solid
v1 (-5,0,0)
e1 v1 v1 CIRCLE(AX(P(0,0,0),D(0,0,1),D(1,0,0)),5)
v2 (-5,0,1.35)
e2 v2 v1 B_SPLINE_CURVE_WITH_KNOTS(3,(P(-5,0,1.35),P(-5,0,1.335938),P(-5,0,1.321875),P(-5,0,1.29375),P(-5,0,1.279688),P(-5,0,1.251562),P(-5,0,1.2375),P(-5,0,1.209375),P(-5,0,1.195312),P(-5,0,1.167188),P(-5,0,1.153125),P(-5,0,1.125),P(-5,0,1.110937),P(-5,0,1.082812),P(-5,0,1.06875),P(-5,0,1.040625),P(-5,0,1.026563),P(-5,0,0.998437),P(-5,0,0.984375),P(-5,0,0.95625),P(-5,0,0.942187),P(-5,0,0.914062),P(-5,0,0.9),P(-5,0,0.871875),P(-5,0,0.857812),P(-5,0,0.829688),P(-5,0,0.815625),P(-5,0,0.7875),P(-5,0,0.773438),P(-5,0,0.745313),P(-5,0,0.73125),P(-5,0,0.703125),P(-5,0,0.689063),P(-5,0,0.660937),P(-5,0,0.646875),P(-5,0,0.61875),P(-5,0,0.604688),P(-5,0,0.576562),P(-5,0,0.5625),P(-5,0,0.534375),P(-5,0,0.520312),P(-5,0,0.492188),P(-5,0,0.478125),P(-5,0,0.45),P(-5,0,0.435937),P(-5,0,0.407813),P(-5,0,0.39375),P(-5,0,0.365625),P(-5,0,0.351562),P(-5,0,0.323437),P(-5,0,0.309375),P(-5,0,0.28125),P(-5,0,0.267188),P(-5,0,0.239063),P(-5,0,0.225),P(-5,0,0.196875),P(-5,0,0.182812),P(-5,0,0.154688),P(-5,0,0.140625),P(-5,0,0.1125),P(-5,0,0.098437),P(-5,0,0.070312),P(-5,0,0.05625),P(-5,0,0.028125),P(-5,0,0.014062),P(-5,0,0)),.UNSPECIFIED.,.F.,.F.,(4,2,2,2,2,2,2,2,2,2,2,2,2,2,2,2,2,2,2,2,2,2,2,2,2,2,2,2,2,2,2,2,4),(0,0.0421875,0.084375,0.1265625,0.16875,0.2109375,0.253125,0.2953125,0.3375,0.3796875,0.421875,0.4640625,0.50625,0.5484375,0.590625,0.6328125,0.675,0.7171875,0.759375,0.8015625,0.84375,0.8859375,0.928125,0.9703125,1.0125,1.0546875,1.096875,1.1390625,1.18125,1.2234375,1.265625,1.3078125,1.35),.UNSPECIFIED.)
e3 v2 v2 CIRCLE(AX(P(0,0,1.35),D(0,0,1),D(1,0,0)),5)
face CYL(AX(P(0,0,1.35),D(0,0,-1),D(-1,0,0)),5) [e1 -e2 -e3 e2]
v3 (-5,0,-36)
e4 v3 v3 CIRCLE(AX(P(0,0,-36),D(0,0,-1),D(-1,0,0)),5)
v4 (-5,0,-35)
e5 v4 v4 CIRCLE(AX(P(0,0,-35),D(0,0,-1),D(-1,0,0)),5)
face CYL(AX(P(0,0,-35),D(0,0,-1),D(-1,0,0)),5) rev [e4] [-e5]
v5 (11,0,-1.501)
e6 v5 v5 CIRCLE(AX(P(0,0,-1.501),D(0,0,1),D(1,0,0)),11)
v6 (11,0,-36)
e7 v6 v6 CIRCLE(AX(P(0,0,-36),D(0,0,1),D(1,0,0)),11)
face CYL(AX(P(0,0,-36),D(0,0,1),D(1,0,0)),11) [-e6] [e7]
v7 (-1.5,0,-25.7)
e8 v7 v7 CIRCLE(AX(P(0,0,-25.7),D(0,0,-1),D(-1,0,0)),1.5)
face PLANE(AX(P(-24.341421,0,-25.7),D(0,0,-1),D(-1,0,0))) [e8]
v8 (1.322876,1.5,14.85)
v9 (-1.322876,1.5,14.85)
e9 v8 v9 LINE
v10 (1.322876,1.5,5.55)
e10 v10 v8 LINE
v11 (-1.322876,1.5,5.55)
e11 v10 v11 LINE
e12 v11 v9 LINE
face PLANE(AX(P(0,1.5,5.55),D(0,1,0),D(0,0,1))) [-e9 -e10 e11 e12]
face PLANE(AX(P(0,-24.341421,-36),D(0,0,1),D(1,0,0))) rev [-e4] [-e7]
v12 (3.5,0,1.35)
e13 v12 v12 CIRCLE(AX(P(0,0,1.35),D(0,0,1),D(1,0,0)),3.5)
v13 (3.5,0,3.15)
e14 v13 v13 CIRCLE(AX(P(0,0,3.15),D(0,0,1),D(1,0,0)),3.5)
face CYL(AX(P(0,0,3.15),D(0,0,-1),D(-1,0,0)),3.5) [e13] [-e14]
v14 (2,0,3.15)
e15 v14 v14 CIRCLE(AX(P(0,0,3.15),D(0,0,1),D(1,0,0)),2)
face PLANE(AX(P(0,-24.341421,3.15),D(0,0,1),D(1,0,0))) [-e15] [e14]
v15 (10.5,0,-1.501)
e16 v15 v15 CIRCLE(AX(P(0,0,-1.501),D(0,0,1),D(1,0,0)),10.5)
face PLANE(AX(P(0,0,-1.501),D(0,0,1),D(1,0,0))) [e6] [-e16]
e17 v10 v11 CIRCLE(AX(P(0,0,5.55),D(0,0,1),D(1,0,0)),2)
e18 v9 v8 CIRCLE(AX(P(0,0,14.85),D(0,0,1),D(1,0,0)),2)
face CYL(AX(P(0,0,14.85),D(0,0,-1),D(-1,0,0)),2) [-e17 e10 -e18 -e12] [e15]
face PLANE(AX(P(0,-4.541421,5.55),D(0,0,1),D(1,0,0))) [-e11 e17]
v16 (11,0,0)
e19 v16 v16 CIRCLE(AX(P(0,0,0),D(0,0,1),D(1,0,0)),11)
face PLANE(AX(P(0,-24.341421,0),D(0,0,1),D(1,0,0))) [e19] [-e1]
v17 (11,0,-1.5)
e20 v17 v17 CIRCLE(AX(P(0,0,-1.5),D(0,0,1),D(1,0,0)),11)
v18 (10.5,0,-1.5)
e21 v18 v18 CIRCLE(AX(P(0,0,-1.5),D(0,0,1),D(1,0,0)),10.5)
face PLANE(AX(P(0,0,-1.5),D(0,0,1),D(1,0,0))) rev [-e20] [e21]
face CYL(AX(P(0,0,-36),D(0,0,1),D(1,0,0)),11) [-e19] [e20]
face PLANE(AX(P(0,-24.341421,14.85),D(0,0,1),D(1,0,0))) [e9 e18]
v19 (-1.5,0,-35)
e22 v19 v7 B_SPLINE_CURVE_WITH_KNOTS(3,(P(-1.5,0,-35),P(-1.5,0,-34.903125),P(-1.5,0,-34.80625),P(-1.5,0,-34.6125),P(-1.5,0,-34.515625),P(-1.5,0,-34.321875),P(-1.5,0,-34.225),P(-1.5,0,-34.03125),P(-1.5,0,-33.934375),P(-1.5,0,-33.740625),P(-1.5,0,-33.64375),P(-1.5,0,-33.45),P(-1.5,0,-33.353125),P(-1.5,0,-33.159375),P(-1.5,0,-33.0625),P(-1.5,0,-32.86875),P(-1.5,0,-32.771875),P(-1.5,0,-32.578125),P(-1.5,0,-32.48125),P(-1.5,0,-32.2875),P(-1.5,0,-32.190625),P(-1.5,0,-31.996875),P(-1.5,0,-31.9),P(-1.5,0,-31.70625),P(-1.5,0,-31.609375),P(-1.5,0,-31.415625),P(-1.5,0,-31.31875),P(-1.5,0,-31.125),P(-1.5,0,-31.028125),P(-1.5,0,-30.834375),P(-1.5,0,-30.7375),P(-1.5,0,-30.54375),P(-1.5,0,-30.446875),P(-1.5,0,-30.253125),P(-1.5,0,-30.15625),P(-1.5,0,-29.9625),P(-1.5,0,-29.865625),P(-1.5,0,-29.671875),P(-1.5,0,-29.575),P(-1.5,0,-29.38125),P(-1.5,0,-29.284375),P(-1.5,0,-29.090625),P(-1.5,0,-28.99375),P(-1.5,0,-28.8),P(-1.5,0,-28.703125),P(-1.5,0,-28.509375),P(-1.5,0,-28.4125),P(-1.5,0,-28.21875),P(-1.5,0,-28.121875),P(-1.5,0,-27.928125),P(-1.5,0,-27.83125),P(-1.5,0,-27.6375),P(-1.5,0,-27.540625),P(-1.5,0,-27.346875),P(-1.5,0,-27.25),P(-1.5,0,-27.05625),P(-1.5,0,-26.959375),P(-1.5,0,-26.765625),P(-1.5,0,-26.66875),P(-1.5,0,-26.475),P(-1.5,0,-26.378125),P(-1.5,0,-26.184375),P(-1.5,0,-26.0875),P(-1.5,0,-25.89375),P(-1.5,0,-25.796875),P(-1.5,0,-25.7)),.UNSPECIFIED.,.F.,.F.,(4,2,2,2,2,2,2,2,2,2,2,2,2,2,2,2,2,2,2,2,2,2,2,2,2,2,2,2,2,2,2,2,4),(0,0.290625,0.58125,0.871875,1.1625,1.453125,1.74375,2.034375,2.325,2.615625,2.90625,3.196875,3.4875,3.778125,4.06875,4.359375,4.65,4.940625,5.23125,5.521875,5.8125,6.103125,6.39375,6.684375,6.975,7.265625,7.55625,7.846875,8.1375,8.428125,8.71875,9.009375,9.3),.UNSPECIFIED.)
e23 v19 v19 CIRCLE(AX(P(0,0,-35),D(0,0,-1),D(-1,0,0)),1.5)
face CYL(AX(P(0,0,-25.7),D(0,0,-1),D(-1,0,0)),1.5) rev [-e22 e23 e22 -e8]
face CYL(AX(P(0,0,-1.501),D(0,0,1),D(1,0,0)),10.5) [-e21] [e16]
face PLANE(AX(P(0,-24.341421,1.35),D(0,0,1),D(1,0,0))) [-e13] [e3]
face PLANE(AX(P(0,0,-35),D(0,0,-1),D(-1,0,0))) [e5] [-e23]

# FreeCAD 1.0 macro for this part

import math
import FreeCAD as App
import Part
import Sketcher
Q = App.Units.Quantity

doc = App.newDocument("Part")
body = doc.addObject("PartDesign::Body", "Body")

# Sketch on XY plane
sketch1 = body.newObject("Sketcher::SketchObject", "Sketch")
sketch1.AttachmentSupport = (doc.getObject("XY_Plane"), [""])
sketch1.MapMode = "FlatFace"
sketch1.addGeometry(Part.Circle(App.Vector(0, 0, 0), App.Vector(0, 0, 1), 11), False)
sketch1.addConstraint(Sketcher.Constraint("Coincident", 0, 3, -1, 1))
sketch1.addConstraint(Sketcher.Constraint("Diameter", 0, Q("22 mm")))
pad1 = body.newObject("PartDesign::Pad", "Pad")
pad1.Profile = sketch1
pad1.Length = 36
pad1.Reversed = True

# Sketch on XY plane
sketch2 = body.newObject("Sketcher::SketchObject", "Sketch001")
sketch2.AttachmentSupport = (doc.getObject("XY_Plane"), [""])
sketch2.MapMode = "FlatFace"
sketch2.addGeometry(Part.Circle(App.Vector(0, 0, 0), App.Vector(0, 0, 1), 5), False)
sketch2.addGeometry(Part.Circle(App.Vector(0, 0, 0), App.Vector(0, 0, 1), 3.5), False)
sketch2.addConstraint(Sketcher.Constraint("Coincident", 0, 3, -1, 1))
sketch2.addConstraint(Sketcher.Constraint("Coincident", 1, 3, -1, 1))
sketch2.addConstraint(Sketcher.Constraint("Diameter", 0, Q("10 mm")))
sketch2.addConstraint(Sketcher.Constraint("Diameter", 1, Q("7 mm")))
pad2 = body.newObject("PartDesign::Pad", "Pad001")
pad2.Profile = sketch2
pad2.Length = 1.35

# Sketch on XY plane
sketch3 = body.newObject("Sketcher::SketchObject", "Sketch002")
sketch3.AttachmentSupport = (doc.getObject("XY_Plane"), [""])
sketch3.MapMode = "FlatFace"
sketch3.addGeometry(Part.Circle(App.Vector(0, 0, 0), App.Vector(0, 0, 1), 3.5), False)
sketch3.addGeometry(Part.Circle(App.Vector(0, 0, 0), App.Vector(0, 0, 1), 2), False)
sketch3.addConstraint(Sketcher.Constraint("Coincident", 0, 3, -1, 1))
sketch3.addConstraint(Sketcher.Constraint("Coincident", 1, 3, -1, 1))
sketch3.addConstraint(Sketcher.Constraint("Diameter", 0, Q("7 mm")))
sketch3.addConstraint(Sketcher.Constraint("Diameter", 1, Q("4 mm")))
pad3 = body.newObject("PartDesign::Pad", "Pad002")
pad3.Profile = sketch3
pad3.Length = 3.15

# Sketch on XY plane
sketch4 = body.newObject("Sketcher::SketchObject", "Sketch003")
sketch4.AttachmentSupport = (doc.getObject("XY_Plane"), [""])
sketch4.MapMode = "FlatFace"
sketch4.AttachmentOffset = App.Placement(App.Vector(0, 0, -1.5), App.Rotation())
sketch4.addGeometry(Part.Circle(App.Vector(0, 0, 0), App.Vector(0, 0, 1), 11), False)
sketch4.addGeometry(Part.Circle(App.Vector(0, 0, 0), App.Vector(0, 0, 1), 10), False)
sketch4.addConstraint(Sketcher.Constraint("Coincident", 0, 3, -1, 1))
sketch4.addConstraint(Sketcher.Constraint("Coincident", 1, 3, -1, 1))
sketch4.addConstraint(Sketcher.Constraint("Diameter", 0, Q("22 mm")))
sketch4.addConstraint(Sketcher.Constraint("Diameter", 1, Q("21 mm")))
pocket1 = body.newObject("PartDesign::Pocket", "Pocket")
pocket1.Profile = sketch4
pocket1.Length = 0.001

# Sketch on XY plane
sketch5 = body.newObject("Sketcher::SketchObject", "Sketch004")
sketch5.AttachmentSupport = (doc.getObject("XY_Plane"), [""])
sketch5.MapMode = "FlatFace"
sketch5.addGeometry(Part.Circle(App.Vector(0, 0, 0), App.Vector(0, 0, 1), 2), False)
sketch5.addConstraint(Sketcher.Constraint("Coincident", 0, 3, -1, 1))
sketch5.addConstraint(Sketcher.Constraint("Diameter", 0, Q("4 mm")))
pad4 = body.newObject("PartDesign::Pad", "Pad003")
pad4.Profile = sketch5
pad4.Length = 14.85

# Sketch on XY plane
sketch6 = body.newObject("Sketcher::SketchObject", "Sketch005")
sketch6.AttachmentSupport = (doc.getObject("XY_Plane"), [""])
sketch6.MapMode = "FlatFace"
sketch6.AttachmentOffset = App.Placement(App.Vector(0, 0, 5.55), App.Rotation())
sketch6.addGeometry(Part.LineSegment(App.Vector(-1.3, 1.5, 0), App.Vector(1.3, 1.5, 0)), False)
sketch6.addGeometry(Part.ArcOfCircle(Part.Circle(App.Vector(0, 0, 0), App.Vector(0, 0, 1), 2), math.radians(49), math.radians(131)), False)
sketch6.addConstraint(Sketcher.Constraint("Coincident", 0, 1, 1, 2))
sketch6.addConstraint(Sketcher.Constraint("Coincident", 1, 1, 0, 2))
sketch6.addConstraint(Sketcher.Constraint("Horizontal", 0))
sketch6.addConstraint(Sketcher.Constraint("Coincident", 1, 3, -1, 1))
sketch6.addConstraint(Sketcher.Constraint("Radius", 1, Q("2 mm")))
sketch6.addConstraint(Sketcher.Constraint("DistanceY", -1, 1, 0, 1, Q("1.5 mm")))
pocket2 = body.newObject("PartDesign::Pocket", "Pocket001")
pocket2.Profile = sketch6
pocket2.Length = 9.3
pocket2.Reversed = True

# Sketch on XY plane
sketch7 = body.newObject("Sketcher::SketchObject", "Sketch006")
sketch7.AttachmentSupport = (doc.getObject("XY_Plane"), [""])
sketch7.MapMode = "FlatFace"
sketch7.AttachmentOffset = App.Placement(App.Vector(0, 0, -36), App.Rotation())
sketch7.addGeometry(Part.Circle(App.Vector(0, 0, 0), App.Vector(0, 0, 1), 5), False)
sketch7.addGeometry(Part.Circle(App.Vector(0, 0, 0), App.Vector(0, 0, 1), 1.5), False)
sketch7.addConstraint(Sketcher.Constraint("Coincident", 0, 3, -1, 1))
sketch7.addConstraint(Sketcher.Constraint("Coincident", 1, 3, -1, 1))
sketch7.addConstraint(Sketcher.Constraint("Diameter", 0, Q("10 mm")))
sketch7.addConstraint(Sketcher.Constraint("Diameter", 1, Q("3 mm")))
pocket3 = body.newObject("PartDesign::Pocket", "Pocket002")
pocket3.Profile = sketch7
pocket3.Length = 1
pocket3.Reversed = True

# Sketch on XY plane
sketch8 = body.newObject("Sketcher::SketchObject", "Sketch007")
sketch8.AttachmentSupport = (doc.getObject("XY_Plane"), [""])
sketch8.MapMode = "FlatFace"
sketch8.AttachmentOffset = App.Placement(App.Vector(0, 0, -36), App.Rotation())
sketch8.addGeometry(Part.Circle(App.Vector(0, 0, 0), App.Vector(0, 0, 1), 1.5), False)
sketch8.addConstraint(Sketcher.Constraint("Coincident", 0, 3, -1, 1))
sketch8.addConstraint(Sketcher.Constraint("Diameter", 0, Q("3 mm")))
pocket4 = body.newObject("PartDesign::Pocket", "Pocket003")
pocket4.Profile = sketch8
pocket4.Length = 10.3
pocket4.Reversed = True

doc.recompute()
